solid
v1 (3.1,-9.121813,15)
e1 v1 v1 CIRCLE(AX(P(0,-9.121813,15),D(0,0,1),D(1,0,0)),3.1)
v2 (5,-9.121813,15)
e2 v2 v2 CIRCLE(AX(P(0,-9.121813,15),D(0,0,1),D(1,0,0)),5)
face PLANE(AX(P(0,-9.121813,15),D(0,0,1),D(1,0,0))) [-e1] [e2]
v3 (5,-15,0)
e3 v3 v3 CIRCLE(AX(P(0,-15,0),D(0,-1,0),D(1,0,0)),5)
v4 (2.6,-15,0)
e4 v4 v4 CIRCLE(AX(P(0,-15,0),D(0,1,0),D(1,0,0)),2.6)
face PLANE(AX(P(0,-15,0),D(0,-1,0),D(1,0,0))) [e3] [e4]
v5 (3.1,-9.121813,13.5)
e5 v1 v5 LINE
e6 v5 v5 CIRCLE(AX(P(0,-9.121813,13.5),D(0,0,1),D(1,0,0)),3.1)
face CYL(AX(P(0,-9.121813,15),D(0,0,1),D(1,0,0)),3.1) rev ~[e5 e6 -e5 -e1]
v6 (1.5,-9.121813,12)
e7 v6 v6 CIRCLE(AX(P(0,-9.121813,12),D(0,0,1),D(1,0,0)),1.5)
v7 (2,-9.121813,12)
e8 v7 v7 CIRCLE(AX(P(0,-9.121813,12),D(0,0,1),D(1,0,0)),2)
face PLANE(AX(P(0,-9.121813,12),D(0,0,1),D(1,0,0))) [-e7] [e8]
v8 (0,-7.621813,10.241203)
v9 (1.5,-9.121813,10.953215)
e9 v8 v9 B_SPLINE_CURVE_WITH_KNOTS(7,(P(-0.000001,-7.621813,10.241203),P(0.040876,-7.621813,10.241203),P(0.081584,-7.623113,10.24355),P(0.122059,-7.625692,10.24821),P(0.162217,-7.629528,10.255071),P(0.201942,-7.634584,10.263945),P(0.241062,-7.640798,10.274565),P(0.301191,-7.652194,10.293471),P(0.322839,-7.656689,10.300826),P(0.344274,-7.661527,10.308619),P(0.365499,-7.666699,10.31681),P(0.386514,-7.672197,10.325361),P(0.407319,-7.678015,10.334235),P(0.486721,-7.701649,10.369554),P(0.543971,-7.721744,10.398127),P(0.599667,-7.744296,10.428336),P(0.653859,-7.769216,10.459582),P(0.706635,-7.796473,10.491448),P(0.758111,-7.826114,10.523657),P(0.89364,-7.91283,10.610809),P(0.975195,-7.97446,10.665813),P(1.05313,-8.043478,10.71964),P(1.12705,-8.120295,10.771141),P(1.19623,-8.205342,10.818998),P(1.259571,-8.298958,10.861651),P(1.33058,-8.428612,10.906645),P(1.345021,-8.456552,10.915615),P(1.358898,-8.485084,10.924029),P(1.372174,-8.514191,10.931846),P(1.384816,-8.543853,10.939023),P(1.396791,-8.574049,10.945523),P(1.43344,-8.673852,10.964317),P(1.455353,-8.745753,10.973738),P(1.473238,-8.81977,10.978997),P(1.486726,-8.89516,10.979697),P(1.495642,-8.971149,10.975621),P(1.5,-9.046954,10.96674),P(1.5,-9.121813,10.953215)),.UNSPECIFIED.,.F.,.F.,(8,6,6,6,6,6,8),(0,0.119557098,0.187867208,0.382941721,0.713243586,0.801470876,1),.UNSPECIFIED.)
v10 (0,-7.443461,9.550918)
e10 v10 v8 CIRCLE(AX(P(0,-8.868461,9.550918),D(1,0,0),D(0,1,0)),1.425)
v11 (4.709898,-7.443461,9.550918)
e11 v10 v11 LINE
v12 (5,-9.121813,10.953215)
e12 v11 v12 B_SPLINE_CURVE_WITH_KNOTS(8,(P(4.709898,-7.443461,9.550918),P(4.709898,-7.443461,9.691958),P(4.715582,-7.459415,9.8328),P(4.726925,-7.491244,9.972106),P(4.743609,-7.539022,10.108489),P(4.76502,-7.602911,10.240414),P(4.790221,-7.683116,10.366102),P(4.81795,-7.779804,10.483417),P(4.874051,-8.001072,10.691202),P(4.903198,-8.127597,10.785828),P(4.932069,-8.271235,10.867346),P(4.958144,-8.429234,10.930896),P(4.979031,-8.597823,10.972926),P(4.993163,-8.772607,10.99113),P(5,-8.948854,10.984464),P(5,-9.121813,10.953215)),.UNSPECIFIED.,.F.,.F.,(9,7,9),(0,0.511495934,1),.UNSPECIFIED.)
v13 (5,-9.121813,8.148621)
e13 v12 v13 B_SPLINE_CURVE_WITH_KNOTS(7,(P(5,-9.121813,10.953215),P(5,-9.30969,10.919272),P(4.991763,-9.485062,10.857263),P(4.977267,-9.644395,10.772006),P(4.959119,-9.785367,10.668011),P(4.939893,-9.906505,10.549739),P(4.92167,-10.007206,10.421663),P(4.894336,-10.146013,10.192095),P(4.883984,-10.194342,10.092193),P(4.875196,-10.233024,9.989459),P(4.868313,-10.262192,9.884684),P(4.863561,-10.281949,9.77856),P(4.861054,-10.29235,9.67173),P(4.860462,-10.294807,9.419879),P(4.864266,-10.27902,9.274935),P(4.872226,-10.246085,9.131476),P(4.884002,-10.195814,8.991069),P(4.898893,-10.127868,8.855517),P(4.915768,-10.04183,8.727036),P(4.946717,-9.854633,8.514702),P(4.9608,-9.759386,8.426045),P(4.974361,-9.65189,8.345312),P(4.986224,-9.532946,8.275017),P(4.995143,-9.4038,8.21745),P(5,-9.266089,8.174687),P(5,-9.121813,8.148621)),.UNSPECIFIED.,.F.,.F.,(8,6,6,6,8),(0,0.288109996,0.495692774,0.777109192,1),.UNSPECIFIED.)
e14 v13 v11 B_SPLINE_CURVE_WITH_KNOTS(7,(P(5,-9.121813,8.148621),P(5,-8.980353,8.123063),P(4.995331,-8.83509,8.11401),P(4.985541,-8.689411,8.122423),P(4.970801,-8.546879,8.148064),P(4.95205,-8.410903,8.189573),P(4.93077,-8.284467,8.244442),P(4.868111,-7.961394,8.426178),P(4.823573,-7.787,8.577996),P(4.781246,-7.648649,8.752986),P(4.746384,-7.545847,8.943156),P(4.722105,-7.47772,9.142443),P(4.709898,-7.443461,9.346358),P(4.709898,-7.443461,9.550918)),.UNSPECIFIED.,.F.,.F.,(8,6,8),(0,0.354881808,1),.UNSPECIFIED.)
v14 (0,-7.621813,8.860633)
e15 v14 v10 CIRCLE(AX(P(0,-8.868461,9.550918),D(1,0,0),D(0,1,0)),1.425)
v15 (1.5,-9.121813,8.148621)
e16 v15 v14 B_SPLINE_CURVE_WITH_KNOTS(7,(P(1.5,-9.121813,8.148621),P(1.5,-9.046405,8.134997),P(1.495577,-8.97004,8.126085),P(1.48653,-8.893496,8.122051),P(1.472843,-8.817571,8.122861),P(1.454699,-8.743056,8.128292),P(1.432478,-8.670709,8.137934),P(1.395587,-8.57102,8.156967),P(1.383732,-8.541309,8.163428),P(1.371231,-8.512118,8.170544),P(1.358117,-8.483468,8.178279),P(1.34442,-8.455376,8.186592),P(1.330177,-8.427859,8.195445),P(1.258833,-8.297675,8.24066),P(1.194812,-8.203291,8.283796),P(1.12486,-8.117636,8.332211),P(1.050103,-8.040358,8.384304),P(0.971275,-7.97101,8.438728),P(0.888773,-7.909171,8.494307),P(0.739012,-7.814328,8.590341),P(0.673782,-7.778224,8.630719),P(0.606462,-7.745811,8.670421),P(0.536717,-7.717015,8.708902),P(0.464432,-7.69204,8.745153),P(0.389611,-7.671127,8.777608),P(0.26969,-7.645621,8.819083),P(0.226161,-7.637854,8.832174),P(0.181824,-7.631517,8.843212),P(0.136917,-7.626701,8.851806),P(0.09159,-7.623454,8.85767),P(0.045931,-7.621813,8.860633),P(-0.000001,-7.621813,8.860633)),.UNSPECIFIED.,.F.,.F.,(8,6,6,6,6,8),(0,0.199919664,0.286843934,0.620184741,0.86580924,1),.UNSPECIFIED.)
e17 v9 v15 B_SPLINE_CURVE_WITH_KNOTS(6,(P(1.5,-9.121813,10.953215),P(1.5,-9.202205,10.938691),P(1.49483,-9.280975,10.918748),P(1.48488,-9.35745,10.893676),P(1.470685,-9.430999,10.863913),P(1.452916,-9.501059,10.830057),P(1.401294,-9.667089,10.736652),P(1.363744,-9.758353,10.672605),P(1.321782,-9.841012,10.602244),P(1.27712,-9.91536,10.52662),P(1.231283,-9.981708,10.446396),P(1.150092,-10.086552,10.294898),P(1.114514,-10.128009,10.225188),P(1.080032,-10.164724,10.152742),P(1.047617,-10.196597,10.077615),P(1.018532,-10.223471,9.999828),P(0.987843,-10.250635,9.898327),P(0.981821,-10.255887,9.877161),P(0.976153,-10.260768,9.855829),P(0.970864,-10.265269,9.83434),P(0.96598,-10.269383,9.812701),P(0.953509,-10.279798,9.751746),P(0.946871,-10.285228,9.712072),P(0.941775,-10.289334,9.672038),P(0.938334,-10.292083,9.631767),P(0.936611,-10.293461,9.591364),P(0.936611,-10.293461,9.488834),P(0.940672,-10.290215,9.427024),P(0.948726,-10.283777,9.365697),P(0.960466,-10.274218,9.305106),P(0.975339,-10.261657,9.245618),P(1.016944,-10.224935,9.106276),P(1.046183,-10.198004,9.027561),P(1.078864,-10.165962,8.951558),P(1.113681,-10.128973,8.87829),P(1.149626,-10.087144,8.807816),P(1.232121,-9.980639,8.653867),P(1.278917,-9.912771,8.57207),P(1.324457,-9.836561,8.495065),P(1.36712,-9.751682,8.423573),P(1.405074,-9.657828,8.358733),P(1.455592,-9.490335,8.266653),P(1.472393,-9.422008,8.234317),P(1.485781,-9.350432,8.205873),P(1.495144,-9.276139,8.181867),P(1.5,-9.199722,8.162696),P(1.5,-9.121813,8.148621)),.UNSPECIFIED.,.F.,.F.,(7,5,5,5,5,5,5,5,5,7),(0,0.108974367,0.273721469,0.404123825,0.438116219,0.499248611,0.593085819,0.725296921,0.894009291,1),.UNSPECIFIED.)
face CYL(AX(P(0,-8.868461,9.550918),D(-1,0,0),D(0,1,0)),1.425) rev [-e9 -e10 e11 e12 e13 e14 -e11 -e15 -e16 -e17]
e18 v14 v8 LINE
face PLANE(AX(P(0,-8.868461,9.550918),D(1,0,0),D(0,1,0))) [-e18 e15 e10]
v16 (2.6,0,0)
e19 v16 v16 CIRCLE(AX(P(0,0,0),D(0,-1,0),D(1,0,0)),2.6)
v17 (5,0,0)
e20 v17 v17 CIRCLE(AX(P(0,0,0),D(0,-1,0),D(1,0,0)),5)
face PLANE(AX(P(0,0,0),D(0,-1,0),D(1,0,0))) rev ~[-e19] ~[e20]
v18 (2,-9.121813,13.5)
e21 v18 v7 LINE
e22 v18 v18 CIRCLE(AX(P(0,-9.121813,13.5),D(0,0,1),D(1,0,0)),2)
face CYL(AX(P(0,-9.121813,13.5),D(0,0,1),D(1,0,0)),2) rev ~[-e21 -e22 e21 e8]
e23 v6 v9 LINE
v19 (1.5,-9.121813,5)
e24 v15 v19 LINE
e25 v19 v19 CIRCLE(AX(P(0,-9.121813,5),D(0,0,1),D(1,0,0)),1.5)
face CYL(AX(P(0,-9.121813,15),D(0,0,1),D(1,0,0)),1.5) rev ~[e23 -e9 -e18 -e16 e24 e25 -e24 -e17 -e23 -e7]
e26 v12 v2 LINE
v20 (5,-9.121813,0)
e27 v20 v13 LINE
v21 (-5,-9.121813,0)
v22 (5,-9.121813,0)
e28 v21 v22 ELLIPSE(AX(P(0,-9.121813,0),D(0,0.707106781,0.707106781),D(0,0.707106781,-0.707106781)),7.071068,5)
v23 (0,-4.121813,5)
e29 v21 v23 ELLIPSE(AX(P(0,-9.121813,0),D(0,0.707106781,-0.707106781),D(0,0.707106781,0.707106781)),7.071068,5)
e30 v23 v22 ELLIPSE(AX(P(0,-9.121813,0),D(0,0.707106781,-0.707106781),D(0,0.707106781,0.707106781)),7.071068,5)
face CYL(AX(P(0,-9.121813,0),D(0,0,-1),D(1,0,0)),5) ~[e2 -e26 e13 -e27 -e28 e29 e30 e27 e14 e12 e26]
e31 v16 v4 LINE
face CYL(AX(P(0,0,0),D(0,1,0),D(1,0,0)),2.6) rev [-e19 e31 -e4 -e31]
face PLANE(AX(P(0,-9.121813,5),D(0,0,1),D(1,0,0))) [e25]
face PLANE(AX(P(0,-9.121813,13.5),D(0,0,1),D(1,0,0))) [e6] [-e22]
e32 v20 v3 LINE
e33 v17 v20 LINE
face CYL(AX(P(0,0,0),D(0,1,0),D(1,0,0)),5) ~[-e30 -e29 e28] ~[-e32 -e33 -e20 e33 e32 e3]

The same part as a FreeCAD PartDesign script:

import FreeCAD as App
import Part
import Sketcher

V = App.Vector

doc = App.newDocument("Part")
params = doc.addObject("Spreadsheet::Sheet", "Params")
for row, (alias, value) in enumerate([
    ("sketch1_diameter", "10 mm"),
    ("pad1_length", "15 mm"),
    ("sketch2_diameter", "10 mm"),
    ("pad2_length", "15 mm"),
    ("sketch3_diameter", "5.2 mm"),
    ("pocket1_length", "25 mm"),
    ("sketch4_diameter", "3 mm"),
    ("pocket2_length", "10 mm"),
    ("sketch5_diameter", "6.2 mm"),
    ("pocket3_length", "1.5 mm"),
    ("sketch6_diameter", "2.85 mm"),
    ("pocket4_length", "25 mm"),
    ("sketch7_diameter", "4 mm"),
    ("pocket5_length", "1.5 mm"),
], start=1):
    params.set(f"A{row}", alias)
    params.set(f"B{row}", "=" + value)
    params.setAlias(f"B{row}", alias)

body = doc.addObject("PartDesign::Body", "Body")

# Sketch on XZ plane
sketch1 = body.newObject("Sketcher::SketchObject", "Sketch")
sketch1.AttachmentSupport = (doc.getObject("XZ_Plane"), [""])
sketch1.MapMode = "FlatFace"
sketch1.addGeometry(Part.Circle(V(0, 0, 0), V(0, 0, 1), 5), False)
sketch1.addConstraint(Sketcher.Constraint("Coincident", 0, 3, -1, 1))
sketch1.addConstraint(Sketcher.Constraint("Diameter", 0, 10.0))
sketch1.setExpression("Constraints[1]", "Params.sketch1_diameter")
pad1 = body.newObject("PartDesign::Pad", "Pad")
pad1.Profile = sketch1
pad1.setExpression("Length", "Params.pad1_length")

# Sketch on XY plane
sketch2 = body.newObject("Sketcher::SketchObject", "Sketch001")
sketch2.AttachmentSupport = (doc.getObject("XY_Plane"), [""])
sketch2.MapMode = "FlatFace"
sketch2.addGeometry(Part.Circle(V(0, -9, 0), V(0, 0, 1), 5), False)
sketch2.addConstraint(Sketcher.Constraint("PointOnObject", 0, 3, -2))
sketch2.addConstraint(Sketcher.Constraint("Diameter", 0, 10.0))
sketch2.addConstraint(Sketcher.Constraint("DistanceY", 0, 3, -1, 1, 9.121813))
sketch2.setExpression("Constraints[1]", "Params.sketch2_diameter")
pad2 = body.newObject("PartDesign::Pad", "Pad001")
pad2.Profile = sketch2
pad2.setExpression("Length", "Params.pad2_length")

# Sketch on XZ plane
sketch3 = body.newObject("Sketcher::SketchObject", "Sketch002")
sketch3.AttachmentSupport = (doc.getObject("XZ_Plane"), [""])
sketch3.MapMode = "FlatFace"
sketch3.addGeometry(Part.Circle(V(0, 0, 0), V(0, 0, 1), 2.6), False)
sketch3.addConstraint(Sketcher.Constraint("Coincident", 0, 3, -1, 1))
sketch3.addConstraint(Sketcher.Constraint("Diameter", 0, 5.2))
sketch3.setExpression("Constraints[1]", "Params.sketch3_diameter")
pocket1 = body.newObject("PartDesign::Pocket", "Pocket")
pocket1.Profile = sketch3
pocket1.setExpression("Length", "Params.pocket1_length")
pocket1.Reversed = True

# Sketch on XY plane
sketch4 = body.newObject("Sketcher::SketchObject", "Sketch003")
sketch4.AttachmentSupport = (doc.getObject("XY_Plane"), [""])
sketch4.MapMode = "FlatFace"
sketch4.AttachmentOffset = App.Placement(V(0, 0, 15), App.Rotation())
sketch4.addGeometry(Part.Circle(V(0, -9.1, 0), V(0, 0, 1), 1.5), False)
sketch4.addConstraint(Sketcher.Constraint("PointOnObject", 0, 3, -2))
sketch4.addConstraint(Sketcher.Constraint("Diameter", 0, 3.0))
sketch4.addConstraint(Sketcher.Constraint("DistanceY", 0, 3, -1, 1, 9.121813))
sketch4.setExpression("Constraints[1]", "Params.sketch4_diameter")
pocket2 = body.newObject("PartDesign::Pocket", "Pocket001")
pocket2.Profile = sketch4
pocket2.setExpression("Length", "Params.pocket2_length")

# Sketch on XY plane
sketch5 = body.newObject("Sketcher::SketchObject", "Sketch004")
sketch5.AttachmentSupport = (doc.getObject("XY_Plane"), [""])
sketch5.MapMode = "FlatFace"
sketch5.AttachmentOffset = App.Placement(V(0, 0, 15), App.Rotation())
sketch5.addGeometry(Part.Circle(V(0, -9.1, 0), V(0, 0, 1), 3.1), False)
sketch5.addConstraint(Sketcher.Constraint("PointOnObject", 0, 3, -2))
sketch5.addConstraint(Sketcher.Constraint("Diameter", 0, 6.2))
sketch5.addConstraint(Sketcher.Constraint("DistanceY", 0, 3, -1, 1, 9.121813))
sketch5.setExpression("Constraints[1]", "Params.sketch5_diameter")
pocket3 = body.newObject("PartDesign::Pocket", "Pocket002")
pocket3.Profile = sketch5
pocket3.setExpression("Length", "Params.pocket3_length")

# Sketch on YZ plane
sketch6 = body.newObject("Sketcher::SketchObject", "Sketch005")
sketch6.AttachmentSupport = (doc.getObject("YZ_Plane"), [""])
sketch6.MapMode = "FlatFace"
sketch6.addGeometry(Part.Circle(V(-8.9, 9.6, 0), V(0, 0, 1), 1.4), False)
sketch6.addConstraint(Sketcher.Constraint("Diameter", 0, 2.85))
sketch6.addConstraint(Sketcher.Constraint("DistanceX", 0, 3, -1, 1, 8.868461))
sketch6.addConstraint(Sketcher.Constraint("DistanceY", -1, 1, 0, 3, 9.550918))
sketch6.setExpression("Constraints[0]", "Params.sketch6_diameter")
pocket4 = body.newObject("PartDesign::Pocket", "Pocket003")
pocket4.Profile = sketch6
pocket4.setExpression("Length", "Params.pocket4_length")
pocket4.Reversed = True

# Sketch on XY plane
sketch7 = body.newObject("Sketcher::SketchObject", "Sketch006")
sketch7.AttachmentSupport = (doc.getObject("XY_Plane"), [""])
sketch7.MapMode = "FlatFace"
sketch7.AttachmentOffset = App.Placement(V(0, 0, 13.5), App.Rotation())
sketch7.addGeometry(Part.Circle(V(0, -9.1, 0), V(0, 0, 1), 2), False)
sketch7.addConstraint(Sketcher.Constraint("PointOnObject", 0, 3, -2))
sketch7.addConstraint(Sketcher.Constraint("Diameter", 0, 4.0))
sketch7.addConstraint(Sketcher.Constraint("DistanceY", 0, 3, -1, 1, 9.121813))
sketch7.setExpression("Constraints[1]", "Params.sketch7_diameter")
pocket5 = body.newObject("PartDesign::Pocket", "Pocket004")
pocket5.Profile = sketch7
pocket5.setExpression("Length", "Params.pocket5_length")

doc.recompute()
